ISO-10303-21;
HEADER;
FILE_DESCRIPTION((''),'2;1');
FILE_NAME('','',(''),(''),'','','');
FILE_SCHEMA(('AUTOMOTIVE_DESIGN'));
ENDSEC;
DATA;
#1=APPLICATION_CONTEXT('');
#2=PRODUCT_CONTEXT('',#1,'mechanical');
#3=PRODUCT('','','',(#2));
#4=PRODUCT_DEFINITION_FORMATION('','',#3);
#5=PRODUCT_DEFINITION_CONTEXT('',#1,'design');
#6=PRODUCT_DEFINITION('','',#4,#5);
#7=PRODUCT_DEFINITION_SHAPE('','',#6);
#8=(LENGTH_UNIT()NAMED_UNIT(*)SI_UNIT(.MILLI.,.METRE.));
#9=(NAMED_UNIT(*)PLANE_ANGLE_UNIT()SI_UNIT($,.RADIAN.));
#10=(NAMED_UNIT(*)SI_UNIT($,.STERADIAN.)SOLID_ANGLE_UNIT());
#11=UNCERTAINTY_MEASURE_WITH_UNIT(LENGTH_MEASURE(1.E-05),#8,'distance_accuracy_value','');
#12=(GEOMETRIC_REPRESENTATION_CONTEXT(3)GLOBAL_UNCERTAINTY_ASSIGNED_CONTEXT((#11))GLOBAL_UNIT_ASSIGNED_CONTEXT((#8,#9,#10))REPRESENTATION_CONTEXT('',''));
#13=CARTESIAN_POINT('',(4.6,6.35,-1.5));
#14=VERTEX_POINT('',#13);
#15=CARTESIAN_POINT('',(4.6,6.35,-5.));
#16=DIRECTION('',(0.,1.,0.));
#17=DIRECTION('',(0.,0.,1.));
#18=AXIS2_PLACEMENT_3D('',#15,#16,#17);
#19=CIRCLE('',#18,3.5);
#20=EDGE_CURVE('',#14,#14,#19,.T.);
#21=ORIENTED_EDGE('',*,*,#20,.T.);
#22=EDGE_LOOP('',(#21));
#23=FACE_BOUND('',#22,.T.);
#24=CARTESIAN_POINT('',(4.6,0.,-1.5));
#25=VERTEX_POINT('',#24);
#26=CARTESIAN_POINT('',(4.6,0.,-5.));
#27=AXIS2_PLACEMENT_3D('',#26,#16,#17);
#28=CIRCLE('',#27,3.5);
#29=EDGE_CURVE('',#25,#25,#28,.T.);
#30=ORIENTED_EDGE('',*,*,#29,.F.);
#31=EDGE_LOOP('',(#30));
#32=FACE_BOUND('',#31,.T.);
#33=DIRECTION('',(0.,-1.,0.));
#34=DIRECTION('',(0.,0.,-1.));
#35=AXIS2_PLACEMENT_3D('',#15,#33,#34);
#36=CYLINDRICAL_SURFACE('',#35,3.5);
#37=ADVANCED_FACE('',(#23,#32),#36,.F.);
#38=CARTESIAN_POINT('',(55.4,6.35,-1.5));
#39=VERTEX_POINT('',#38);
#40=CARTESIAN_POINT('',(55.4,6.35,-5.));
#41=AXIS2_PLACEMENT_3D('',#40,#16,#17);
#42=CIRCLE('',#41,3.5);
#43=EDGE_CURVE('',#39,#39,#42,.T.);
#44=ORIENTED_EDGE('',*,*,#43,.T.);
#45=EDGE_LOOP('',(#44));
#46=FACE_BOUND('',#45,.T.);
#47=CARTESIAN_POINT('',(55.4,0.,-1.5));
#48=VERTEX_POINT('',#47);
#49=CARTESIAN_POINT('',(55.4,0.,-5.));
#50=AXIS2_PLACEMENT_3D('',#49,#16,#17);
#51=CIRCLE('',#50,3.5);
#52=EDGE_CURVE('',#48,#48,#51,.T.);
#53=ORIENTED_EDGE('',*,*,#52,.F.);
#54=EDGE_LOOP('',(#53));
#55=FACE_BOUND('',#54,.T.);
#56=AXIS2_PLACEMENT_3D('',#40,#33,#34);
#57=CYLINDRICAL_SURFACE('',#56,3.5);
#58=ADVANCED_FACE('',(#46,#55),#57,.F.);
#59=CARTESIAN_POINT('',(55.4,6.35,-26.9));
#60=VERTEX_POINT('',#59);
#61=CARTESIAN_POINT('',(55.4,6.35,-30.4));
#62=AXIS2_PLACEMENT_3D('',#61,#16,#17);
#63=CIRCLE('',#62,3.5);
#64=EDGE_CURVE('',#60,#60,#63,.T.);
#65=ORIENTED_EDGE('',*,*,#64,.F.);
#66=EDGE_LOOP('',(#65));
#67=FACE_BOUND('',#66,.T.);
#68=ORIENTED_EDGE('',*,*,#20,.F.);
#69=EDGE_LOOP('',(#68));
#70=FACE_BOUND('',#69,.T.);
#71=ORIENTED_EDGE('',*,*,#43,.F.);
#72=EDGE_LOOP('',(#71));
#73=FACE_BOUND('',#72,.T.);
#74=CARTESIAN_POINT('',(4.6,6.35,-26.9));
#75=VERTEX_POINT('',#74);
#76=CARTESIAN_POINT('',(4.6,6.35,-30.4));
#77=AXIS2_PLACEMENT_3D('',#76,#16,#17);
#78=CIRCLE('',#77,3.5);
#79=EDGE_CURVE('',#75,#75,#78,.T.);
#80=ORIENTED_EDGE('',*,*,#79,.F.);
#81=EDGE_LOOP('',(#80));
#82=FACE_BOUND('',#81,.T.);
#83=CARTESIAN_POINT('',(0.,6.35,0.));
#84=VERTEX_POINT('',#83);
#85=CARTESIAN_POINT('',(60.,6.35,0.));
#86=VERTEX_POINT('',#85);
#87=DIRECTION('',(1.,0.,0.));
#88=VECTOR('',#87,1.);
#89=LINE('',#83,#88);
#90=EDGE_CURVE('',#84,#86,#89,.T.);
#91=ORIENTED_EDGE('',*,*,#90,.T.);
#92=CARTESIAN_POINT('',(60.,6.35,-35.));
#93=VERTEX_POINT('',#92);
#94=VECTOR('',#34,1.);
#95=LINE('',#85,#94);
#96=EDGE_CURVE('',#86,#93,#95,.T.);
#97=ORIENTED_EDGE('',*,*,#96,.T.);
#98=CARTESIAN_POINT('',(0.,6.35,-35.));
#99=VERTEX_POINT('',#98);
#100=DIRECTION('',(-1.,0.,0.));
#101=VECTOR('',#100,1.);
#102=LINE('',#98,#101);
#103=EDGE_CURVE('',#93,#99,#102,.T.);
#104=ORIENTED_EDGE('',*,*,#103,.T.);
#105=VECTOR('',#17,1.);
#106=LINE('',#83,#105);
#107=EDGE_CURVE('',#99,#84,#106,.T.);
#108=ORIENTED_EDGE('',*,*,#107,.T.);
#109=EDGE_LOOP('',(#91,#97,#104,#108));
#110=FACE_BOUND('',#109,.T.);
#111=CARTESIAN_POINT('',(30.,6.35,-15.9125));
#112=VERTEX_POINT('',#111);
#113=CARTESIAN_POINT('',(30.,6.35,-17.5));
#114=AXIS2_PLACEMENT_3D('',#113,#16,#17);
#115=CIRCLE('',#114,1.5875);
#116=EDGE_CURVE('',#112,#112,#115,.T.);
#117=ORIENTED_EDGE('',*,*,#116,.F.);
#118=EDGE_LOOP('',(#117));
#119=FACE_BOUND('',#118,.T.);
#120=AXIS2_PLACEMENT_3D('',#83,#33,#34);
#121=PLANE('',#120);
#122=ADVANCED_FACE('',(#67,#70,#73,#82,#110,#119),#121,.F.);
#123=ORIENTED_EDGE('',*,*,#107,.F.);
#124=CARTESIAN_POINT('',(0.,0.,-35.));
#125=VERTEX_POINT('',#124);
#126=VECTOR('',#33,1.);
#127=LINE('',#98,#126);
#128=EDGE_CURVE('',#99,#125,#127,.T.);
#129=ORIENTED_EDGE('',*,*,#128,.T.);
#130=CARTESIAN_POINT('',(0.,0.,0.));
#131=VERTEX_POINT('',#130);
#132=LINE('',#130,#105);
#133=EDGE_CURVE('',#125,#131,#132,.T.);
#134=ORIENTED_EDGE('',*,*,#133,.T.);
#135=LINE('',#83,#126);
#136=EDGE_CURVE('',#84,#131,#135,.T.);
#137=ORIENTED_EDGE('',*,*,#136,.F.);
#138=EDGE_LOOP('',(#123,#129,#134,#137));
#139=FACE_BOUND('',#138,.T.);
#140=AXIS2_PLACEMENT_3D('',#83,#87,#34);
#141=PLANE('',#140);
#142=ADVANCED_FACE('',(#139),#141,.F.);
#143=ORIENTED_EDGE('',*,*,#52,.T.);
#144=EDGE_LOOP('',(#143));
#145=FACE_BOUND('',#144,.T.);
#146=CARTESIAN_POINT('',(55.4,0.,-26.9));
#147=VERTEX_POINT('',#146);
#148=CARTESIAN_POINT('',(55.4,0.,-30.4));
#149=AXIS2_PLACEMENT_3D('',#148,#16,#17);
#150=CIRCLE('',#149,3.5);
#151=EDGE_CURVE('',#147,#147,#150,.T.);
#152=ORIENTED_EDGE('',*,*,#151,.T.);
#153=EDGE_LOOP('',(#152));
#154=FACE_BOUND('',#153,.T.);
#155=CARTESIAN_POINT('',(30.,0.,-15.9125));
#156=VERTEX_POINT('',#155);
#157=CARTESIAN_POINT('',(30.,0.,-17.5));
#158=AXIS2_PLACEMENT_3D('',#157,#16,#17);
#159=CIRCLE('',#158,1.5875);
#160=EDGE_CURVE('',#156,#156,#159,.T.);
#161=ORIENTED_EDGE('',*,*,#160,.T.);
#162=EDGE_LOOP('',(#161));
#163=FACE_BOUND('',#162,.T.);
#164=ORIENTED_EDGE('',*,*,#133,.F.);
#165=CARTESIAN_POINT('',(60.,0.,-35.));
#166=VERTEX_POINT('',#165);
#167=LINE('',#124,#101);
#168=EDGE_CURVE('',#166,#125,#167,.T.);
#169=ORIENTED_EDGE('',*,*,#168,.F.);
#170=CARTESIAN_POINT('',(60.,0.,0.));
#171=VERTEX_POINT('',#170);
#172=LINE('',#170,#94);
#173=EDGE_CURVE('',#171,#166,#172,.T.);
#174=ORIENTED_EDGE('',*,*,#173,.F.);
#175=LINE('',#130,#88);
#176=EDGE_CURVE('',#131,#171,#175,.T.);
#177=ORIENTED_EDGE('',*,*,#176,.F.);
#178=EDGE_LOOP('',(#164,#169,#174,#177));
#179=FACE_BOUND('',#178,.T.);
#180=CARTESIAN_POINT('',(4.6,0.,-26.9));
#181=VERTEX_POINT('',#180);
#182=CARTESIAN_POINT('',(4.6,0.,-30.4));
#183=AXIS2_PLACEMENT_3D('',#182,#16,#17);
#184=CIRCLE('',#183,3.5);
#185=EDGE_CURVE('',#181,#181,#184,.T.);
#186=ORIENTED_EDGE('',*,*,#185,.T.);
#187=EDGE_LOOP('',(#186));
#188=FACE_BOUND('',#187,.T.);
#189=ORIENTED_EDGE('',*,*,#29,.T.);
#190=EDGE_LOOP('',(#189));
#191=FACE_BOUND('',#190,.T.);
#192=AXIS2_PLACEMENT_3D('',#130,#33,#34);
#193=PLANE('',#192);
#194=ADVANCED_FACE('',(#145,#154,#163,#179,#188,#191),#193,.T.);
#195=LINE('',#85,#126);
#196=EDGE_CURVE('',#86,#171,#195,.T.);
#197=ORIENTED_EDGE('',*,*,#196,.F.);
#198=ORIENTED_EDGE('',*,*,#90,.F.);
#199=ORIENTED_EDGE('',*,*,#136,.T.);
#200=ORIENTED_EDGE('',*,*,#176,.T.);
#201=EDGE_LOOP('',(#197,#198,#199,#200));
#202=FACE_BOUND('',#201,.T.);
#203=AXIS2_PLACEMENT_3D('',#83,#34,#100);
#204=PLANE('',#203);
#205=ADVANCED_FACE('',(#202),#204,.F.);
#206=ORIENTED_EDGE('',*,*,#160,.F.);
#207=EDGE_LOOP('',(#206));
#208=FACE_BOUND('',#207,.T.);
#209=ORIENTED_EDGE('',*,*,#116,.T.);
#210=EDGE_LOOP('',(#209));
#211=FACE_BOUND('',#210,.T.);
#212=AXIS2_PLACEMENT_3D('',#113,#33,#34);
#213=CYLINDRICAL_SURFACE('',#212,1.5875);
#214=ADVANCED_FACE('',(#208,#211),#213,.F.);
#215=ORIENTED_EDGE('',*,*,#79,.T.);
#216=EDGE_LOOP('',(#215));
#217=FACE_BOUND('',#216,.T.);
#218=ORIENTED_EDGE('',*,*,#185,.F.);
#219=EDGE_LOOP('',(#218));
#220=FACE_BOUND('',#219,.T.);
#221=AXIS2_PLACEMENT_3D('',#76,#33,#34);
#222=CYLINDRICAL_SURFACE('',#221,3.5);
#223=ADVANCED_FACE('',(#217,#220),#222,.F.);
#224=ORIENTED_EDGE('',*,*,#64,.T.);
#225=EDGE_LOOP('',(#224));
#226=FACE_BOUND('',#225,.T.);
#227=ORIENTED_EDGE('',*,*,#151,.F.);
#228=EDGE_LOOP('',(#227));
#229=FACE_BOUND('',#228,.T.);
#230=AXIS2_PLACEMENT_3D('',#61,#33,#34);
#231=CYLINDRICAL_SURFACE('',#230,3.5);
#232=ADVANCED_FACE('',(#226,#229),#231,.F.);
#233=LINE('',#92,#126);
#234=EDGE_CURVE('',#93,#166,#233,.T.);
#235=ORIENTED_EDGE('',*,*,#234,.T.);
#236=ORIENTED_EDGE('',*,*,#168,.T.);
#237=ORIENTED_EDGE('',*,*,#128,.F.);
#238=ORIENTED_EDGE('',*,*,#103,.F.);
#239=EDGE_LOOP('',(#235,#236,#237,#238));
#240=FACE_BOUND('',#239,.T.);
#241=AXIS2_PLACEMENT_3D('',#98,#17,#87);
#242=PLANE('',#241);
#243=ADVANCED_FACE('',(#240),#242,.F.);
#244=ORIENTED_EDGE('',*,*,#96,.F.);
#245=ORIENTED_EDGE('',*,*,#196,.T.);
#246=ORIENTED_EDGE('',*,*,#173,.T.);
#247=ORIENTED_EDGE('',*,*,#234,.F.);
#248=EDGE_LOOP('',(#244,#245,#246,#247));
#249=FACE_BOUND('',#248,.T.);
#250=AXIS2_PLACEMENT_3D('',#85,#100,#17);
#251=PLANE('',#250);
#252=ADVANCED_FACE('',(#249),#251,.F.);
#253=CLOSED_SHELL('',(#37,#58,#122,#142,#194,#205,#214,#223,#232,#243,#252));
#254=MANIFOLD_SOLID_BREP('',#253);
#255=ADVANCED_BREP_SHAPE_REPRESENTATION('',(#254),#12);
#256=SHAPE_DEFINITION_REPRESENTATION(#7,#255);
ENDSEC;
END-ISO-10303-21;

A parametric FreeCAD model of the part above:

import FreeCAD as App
import Part
import Sketcher
from FreeCAD import Vector
Q = App.Units.Quantity

doc = App.newDocument("Part")
body = doc.addObject("PartDesign::Body", "Body")

# Sketch on XZ plane
sketch1 = body.newObject("Sketcher::SketchObject", "Sketch")
sketch1.AttachmentSupport = (doc.getObject("XZ_Plane"), [""])
sketch1.MapMode = "FlatFace"
sketch1.addGeometry(Part.LineSegment(Vector(0, -35, 0), Vector(0, 0, 0)), False)
sketch1.addGeometry(Part.LineSegment(Vector(0, 0, 0), Vector(60, 0, 0)), False)
sketch1.addGeometry(Part.LineSegment(Vector(60, 0, 0), Vector(60, -35, 0)), False)
sketch1.addGeometry(Part.LineSegment(Vector(60, -35, 0), Vector(0, -35, 0)), False)
sketch1.addGeometry(Part.Circle(Vector(4.6, -5, 0), Vector(0, 0, 1), 3.5), False)
sketch1.addGeometry(Part.Circle(Vector(55.4, -5, 0), Vector(0, 0, 1), 3.5), False)
sketch1.addGeometry(Part.Circle(Vector(30, -17.5, 0), Vector(0, 0, 1), 1.5875), False)
sketch1.addGeometry(Part.Circle(Vector(4.6, -30.4, 0), Vector(0, 0, 1), 3.5), False)
sketch1.addGeometry(Part.Circle(Vector(55.4, -30.4, 0), Vector(0, 0, 1), 3.5), False)
sketch1.addConstraint(Sketcher.Constraint("Coincident", 0, 2, 1, 1))
sketch1.addConstraint(Sketcher.Constraint("Coincident", 1, 2, 2, 1))
sketch1.addConstraint(Sketcher.Constraint("Coincident", 2, 2, 3, 1))
sketch1.addConstraint(Sketcher.Constraint("Coincident", 3, 2, 0, 1))
sketch1.addConstraint(Sketcher.Constraint("Vertical", 0))
sketch1.addConstraint(Sketcher.Constraint("Horizontal", 1))
sketch1.addConstraint(Sketcher.Constraint("Vertical", 2))
sketch1.addConstraint(Sketcher.Constraint("Horizontal", 3))
sketch1.addConstraint(Sketcher.Constraint("Coincident", 0, 2, -1, 1))
sketch1.addConstraint(Sketcher.Constraint("Equal", 4, 5))
sketch1.addConstraint(Sketcher.Constraint("Equal", 5, 7))
sketch1.addConstraint(Sketcher.Constraint("Equal", 7, 8))
sketch1.addConstraint(Sketcher.Constraint("Horizontal", 4, 3, 5, 3))
sketch1.addConstraint(Sketcher.Constraint("Horizontal", 7, 3, 8, 3))
sketch1.addConstraint(Sketcher.Constraint("Vertical", 4, 3, 7, 3))
sketch1.addConstraint(Sketcher.Constraint("Vertical", 5, 3, 8, 3))
sketch1.addConstraint(Sketcher.Constraint("Diameter", 4, Q("7 mm")))
sketch1.addConstraint(Sketcher.Constraint("DistanceX", 1, 1, 1, 2, Q("60 mm")))
sketch1.addConstraint(Sketcher.Constraint("DistanceY", 0, 1, 0, 2, Q("35 mm")))
sketch1.addConstraint(Sketcher.Constraint("Diameter", 6, Q("3.175 mm")))
sketch1.addConstraint(Sketcher.Constraint("DistanceY", 4, 3, -1, 1, Q("5 mm")))
sketch1.addConstraint(Sketcher.Constraint("DistanceX", -1, 1, 6, 3, Q("30 mm")))
sketch1.addConstraint(Sketcher.Constraint("DistanceX", -1, 1, 4, 3, Q("4.6 mm")))
sketch1.addConstraint(Sketcher.Constraint("DistanceX", -1, 1, 5, 3, Q("55.4 mm")))
sketch1.addConstraint(Sketcher.Constraint("DistanceY", 6, 3, -1, 1, Q("17.5 mm")))
sketch1.addConstraint(Sketcher.Constraint("DistanceY", 7, 3, -1, 1, Q("30.4 mm")))
pad1 = body.newObject("PartDesign::Pad", "Pad")
pad1.Profile = sketch1
pad1.Length = 6.35
pad1.Reversed = True

doc.recompute()
